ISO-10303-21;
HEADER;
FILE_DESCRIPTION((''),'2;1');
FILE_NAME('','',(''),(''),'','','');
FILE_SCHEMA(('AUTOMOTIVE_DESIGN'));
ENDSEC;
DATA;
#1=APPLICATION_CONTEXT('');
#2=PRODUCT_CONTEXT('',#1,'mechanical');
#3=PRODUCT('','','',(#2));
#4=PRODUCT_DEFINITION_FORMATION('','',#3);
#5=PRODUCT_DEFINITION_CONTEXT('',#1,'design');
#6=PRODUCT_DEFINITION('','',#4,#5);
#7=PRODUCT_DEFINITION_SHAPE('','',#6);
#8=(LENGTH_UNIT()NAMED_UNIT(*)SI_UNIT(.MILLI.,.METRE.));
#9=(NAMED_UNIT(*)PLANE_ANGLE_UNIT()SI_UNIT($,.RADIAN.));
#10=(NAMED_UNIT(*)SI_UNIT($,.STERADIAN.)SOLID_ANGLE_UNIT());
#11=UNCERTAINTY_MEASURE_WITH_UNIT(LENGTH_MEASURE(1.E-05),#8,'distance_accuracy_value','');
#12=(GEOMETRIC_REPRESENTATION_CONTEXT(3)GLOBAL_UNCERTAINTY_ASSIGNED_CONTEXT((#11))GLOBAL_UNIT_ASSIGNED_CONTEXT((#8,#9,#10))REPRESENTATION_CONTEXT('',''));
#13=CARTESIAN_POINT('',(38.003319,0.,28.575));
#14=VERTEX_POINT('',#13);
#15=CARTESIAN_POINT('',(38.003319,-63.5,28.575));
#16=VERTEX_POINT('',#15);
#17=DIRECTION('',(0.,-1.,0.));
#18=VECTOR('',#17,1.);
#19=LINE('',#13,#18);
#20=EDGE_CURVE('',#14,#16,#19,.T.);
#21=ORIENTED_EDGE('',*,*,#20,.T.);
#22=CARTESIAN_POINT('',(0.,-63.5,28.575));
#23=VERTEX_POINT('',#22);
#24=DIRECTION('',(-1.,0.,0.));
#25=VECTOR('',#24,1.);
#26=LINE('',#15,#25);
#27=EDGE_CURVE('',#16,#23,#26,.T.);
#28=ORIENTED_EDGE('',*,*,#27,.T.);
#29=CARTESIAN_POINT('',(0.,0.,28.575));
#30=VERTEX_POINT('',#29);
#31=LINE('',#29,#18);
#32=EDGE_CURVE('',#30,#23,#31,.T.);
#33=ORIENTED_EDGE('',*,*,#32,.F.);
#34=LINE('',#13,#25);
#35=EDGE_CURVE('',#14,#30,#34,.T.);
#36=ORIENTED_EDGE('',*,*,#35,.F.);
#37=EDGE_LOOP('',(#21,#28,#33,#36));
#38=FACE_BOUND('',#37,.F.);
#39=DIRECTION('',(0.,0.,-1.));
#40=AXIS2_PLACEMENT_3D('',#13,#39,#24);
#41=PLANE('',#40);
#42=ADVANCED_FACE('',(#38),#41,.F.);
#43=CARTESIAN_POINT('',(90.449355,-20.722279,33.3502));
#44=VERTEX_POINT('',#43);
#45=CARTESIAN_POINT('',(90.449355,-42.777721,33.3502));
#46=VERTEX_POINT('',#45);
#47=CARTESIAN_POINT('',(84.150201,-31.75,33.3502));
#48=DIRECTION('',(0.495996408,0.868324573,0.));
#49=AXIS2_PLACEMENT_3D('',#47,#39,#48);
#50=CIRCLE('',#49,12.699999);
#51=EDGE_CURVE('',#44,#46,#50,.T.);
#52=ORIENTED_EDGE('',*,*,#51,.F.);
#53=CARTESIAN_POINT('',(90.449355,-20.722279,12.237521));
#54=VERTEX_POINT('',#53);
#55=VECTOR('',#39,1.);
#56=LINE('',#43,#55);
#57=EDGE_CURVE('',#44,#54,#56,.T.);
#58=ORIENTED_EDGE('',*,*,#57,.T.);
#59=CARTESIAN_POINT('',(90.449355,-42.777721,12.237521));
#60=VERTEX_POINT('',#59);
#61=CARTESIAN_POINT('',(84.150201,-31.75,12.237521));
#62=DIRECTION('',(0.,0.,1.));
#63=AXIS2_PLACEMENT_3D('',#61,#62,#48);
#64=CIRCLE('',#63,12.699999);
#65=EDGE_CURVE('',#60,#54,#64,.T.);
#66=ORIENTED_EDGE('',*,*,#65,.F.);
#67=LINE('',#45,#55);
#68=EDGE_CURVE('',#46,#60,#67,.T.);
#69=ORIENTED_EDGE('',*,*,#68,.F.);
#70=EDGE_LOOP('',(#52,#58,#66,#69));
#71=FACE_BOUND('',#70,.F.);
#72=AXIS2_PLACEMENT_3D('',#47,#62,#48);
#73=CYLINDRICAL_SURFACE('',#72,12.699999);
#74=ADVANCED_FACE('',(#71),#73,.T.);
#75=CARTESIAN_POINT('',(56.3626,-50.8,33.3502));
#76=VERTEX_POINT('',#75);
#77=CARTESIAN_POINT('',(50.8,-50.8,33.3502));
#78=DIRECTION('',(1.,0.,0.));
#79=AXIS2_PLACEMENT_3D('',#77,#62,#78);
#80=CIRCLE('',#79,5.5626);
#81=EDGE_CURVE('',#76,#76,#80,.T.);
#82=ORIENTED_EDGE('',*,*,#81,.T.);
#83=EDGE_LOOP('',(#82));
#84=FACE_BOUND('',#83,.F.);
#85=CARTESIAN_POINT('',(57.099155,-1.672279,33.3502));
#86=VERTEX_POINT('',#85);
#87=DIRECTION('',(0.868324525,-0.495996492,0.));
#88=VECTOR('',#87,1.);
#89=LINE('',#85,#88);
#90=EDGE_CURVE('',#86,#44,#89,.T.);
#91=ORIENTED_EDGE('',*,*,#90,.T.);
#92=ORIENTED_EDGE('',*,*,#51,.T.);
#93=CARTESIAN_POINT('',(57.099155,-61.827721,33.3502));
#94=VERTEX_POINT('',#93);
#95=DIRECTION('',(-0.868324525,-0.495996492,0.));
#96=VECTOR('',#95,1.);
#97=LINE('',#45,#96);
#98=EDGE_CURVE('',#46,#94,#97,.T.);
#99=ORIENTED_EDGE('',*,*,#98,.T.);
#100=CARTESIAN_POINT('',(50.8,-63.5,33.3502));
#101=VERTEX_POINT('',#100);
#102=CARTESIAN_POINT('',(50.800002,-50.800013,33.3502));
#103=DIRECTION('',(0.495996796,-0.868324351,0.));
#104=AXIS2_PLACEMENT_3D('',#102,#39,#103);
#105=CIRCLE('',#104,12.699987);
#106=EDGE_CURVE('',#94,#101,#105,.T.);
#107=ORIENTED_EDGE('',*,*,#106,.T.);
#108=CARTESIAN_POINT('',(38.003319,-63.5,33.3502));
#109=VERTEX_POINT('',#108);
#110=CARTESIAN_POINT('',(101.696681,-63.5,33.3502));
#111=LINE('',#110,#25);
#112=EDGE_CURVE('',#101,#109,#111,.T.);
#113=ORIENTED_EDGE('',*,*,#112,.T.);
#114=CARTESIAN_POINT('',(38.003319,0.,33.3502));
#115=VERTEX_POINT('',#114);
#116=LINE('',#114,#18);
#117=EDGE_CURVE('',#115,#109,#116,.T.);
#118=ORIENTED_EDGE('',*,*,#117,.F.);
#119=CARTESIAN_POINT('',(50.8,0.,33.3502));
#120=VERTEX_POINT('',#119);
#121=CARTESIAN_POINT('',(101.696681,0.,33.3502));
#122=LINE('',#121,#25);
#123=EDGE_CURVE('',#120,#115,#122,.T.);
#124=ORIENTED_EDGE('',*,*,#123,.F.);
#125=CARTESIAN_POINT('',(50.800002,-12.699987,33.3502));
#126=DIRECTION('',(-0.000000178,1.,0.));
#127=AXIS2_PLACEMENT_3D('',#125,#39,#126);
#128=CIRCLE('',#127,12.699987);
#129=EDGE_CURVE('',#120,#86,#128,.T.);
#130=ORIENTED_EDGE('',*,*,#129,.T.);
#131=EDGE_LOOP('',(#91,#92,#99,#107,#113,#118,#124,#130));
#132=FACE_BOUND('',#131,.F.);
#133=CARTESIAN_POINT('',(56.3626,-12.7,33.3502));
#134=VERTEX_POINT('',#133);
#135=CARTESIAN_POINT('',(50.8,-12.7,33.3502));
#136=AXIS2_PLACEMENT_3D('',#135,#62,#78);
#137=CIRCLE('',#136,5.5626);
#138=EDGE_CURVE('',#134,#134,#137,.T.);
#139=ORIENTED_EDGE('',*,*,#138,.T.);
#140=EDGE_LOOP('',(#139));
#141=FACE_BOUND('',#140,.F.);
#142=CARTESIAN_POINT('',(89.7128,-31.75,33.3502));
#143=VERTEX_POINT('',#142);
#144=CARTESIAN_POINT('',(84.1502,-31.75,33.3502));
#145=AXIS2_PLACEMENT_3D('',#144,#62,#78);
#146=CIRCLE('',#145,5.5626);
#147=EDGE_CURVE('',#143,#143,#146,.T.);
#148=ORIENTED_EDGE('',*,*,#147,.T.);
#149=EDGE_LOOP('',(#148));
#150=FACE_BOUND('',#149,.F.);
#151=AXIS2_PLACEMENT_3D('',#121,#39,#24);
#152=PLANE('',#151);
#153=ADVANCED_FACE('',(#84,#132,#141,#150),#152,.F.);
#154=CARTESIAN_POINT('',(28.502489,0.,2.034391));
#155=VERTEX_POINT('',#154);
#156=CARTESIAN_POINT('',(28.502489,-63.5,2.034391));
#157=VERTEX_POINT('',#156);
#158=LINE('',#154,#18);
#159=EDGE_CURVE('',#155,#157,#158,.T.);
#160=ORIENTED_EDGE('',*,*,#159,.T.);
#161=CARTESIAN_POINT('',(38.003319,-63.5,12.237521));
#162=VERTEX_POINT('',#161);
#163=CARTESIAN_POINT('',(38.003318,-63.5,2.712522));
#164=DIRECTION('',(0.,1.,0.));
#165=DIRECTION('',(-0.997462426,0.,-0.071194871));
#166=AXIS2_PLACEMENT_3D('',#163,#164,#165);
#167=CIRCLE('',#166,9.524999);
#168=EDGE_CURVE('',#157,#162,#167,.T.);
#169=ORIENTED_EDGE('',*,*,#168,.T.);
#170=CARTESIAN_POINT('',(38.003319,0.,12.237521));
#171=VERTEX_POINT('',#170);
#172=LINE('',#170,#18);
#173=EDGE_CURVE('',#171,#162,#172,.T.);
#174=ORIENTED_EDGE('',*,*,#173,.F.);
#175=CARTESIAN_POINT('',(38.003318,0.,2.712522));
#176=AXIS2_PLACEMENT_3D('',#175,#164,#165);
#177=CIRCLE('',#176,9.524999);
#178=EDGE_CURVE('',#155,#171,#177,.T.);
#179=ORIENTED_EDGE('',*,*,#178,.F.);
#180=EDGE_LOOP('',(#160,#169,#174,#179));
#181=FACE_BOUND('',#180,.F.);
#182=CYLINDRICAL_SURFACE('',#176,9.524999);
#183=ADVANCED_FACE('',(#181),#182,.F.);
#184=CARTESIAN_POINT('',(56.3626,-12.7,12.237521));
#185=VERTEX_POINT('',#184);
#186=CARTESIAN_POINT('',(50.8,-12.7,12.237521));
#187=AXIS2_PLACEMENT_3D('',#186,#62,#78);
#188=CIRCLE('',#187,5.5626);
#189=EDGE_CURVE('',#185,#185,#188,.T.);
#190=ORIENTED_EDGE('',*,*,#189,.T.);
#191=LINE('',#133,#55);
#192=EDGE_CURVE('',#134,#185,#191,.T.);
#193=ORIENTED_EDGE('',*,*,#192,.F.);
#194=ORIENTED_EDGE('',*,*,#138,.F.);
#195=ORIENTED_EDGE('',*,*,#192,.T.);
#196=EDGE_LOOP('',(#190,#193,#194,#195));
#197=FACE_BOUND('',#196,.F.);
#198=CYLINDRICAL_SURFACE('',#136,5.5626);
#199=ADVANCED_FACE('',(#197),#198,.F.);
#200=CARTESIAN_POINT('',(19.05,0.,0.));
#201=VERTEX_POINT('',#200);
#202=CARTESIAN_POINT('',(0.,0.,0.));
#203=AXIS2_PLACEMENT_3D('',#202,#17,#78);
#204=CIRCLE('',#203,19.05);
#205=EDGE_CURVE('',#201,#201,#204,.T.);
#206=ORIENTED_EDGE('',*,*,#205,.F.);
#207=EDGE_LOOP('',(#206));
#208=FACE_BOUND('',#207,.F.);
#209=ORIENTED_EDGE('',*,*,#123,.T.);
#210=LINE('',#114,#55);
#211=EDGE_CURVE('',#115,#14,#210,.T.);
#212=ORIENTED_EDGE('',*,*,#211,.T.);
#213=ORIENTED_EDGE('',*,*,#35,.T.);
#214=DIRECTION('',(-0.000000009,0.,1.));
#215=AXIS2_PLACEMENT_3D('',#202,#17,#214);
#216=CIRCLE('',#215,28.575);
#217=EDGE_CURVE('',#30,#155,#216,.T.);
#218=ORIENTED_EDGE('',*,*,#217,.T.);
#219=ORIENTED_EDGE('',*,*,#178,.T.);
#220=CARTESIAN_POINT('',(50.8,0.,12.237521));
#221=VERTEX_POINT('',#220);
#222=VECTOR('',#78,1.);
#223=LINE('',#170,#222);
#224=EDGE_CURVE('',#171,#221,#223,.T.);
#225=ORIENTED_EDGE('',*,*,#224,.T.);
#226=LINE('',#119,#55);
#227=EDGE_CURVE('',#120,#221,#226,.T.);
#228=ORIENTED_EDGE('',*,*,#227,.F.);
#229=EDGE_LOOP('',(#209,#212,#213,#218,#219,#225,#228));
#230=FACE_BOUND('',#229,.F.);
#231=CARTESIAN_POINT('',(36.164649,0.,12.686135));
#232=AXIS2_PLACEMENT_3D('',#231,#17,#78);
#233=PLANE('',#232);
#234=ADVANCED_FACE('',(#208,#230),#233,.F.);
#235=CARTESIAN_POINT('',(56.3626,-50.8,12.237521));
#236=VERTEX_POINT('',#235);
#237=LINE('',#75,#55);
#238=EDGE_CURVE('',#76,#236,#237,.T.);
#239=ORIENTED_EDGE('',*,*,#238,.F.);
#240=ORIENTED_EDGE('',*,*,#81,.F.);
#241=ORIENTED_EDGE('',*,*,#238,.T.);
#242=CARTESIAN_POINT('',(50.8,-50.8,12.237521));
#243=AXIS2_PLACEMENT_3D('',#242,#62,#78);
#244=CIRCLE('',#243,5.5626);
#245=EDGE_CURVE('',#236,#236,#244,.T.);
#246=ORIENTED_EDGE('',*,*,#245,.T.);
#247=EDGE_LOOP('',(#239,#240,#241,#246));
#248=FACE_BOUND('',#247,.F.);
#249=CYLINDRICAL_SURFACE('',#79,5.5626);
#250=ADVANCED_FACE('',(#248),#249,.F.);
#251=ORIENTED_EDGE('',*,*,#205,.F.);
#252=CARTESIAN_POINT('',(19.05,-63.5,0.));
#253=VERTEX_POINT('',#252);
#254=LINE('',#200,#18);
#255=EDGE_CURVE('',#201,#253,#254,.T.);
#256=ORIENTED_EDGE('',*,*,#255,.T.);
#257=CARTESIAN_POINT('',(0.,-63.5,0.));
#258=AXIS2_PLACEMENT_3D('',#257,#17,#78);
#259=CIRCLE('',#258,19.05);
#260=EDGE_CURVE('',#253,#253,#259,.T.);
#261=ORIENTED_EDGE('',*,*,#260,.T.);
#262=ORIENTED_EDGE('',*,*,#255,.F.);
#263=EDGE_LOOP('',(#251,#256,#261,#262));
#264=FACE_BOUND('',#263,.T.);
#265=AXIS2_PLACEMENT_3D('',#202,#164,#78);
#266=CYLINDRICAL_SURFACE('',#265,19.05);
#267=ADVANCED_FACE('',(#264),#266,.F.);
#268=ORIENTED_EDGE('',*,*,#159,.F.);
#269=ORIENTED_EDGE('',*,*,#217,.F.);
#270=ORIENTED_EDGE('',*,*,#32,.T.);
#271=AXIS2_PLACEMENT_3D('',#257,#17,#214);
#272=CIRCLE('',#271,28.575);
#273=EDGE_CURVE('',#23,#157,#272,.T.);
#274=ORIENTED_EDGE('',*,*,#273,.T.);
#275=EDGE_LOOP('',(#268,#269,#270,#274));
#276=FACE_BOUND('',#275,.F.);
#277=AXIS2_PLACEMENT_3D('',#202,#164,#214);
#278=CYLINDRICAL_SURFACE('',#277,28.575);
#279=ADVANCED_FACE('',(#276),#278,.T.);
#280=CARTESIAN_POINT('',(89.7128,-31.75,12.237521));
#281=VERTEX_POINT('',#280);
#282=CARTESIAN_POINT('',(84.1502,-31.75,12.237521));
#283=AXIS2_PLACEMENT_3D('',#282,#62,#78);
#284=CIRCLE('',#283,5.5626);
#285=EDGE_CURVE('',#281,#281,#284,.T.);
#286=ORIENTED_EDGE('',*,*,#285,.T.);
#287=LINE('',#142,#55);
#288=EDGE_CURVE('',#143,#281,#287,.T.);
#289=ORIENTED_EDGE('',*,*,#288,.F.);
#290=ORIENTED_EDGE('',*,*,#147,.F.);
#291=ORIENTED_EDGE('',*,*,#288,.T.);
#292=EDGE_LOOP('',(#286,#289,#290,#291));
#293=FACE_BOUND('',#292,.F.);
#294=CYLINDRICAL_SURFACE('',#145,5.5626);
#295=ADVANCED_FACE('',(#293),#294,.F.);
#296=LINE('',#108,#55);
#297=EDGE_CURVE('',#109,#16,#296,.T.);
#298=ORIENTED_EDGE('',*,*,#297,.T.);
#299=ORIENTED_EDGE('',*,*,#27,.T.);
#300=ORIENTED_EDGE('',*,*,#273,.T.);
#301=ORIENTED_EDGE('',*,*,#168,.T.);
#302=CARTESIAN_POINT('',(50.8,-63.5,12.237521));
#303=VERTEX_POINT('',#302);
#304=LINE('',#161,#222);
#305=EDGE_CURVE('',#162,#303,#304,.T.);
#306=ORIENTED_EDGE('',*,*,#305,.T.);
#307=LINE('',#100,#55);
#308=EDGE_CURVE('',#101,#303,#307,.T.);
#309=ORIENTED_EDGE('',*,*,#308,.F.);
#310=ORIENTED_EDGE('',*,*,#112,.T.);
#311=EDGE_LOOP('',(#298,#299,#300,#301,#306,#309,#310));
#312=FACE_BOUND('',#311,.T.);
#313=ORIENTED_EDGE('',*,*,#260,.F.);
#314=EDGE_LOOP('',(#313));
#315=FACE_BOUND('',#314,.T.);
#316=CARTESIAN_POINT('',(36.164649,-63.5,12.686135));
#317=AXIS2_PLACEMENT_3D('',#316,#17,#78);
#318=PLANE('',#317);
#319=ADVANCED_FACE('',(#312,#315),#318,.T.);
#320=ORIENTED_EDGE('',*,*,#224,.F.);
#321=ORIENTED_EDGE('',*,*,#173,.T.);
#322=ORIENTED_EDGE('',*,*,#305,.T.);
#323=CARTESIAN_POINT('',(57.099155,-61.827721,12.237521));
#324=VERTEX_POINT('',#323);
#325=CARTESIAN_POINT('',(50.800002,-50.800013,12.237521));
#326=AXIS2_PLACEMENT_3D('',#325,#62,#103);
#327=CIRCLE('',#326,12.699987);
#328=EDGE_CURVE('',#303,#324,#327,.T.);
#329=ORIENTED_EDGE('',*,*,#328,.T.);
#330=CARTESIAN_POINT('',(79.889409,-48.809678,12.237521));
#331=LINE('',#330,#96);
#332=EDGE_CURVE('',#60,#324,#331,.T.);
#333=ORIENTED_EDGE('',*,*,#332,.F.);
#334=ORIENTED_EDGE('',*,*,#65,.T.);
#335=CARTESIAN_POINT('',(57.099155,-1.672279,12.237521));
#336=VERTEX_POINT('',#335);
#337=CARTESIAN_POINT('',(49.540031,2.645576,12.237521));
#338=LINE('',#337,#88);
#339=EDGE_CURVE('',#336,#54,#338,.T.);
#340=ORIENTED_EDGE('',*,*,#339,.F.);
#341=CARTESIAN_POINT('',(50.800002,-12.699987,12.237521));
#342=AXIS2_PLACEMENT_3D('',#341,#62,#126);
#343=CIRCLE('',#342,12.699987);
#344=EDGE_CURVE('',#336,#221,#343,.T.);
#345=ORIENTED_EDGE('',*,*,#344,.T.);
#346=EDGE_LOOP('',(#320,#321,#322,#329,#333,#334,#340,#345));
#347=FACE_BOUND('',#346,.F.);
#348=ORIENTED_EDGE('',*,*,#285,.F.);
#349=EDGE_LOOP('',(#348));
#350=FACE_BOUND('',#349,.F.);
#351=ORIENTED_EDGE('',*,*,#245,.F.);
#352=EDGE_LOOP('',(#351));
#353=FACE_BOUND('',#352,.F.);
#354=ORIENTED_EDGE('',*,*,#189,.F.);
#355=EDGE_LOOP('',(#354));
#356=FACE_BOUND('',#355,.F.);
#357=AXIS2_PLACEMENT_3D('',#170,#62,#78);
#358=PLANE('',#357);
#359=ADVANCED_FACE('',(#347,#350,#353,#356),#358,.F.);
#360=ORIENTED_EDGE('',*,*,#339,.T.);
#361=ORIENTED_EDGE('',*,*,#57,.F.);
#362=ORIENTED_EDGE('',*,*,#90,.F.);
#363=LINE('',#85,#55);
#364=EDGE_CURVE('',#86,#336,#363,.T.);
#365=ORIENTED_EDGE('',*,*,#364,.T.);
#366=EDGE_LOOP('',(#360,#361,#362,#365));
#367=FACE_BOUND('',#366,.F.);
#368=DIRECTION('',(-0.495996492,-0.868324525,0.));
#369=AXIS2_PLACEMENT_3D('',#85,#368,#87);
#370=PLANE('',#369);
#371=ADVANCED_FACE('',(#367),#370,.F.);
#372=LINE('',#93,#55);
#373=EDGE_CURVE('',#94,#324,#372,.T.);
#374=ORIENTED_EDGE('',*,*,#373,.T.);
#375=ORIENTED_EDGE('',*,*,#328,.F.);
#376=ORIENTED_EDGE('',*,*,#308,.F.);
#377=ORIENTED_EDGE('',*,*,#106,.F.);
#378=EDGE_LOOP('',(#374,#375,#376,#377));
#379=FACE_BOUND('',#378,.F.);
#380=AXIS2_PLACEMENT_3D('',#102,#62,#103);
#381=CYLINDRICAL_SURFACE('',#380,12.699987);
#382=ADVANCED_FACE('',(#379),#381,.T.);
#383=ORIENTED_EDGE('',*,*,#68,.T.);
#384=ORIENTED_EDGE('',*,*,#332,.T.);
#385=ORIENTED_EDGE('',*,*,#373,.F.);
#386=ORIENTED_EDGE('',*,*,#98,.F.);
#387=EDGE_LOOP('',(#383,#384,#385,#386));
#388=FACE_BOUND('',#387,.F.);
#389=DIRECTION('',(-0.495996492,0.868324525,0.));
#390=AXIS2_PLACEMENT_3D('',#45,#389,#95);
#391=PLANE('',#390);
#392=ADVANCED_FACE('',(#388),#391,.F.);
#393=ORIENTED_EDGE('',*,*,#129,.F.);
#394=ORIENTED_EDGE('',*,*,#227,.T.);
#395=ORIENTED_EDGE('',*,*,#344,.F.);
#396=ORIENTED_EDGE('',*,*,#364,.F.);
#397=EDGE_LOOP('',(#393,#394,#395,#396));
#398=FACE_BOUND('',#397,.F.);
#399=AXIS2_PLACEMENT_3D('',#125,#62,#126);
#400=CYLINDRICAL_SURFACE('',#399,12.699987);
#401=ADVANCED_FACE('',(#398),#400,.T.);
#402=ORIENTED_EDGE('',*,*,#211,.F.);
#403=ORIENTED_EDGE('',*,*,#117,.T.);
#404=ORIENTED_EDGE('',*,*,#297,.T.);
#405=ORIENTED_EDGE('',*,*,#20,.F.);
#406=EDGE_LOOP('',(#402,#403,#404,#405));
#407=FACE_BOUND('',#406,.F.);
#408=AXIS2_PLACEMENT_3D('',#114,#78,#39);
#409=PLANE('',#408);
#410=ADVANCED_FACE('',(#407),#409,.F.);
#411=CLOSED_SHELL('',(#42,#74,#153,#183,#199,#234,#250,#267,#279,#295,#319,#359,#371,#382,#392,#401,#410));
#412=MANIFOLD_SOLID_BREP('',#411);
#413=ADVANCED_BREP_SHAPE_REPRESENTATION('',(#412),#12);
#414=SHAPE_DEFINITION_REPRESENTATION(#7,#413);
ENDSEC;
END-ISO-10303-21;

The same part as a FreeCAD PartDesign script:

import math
import FreeCAD as App
import Part
import Sketcher
from FreeCAD import Vector
Q = App.Units.Quantity

doc = App.newDocument("Part")
body = doc.addObject("PartDesign::Body", "Body")

# Sketch on XZ plane
sketch1 = body.newObject("Sketcher::SketchObject", "Sketch")
sketch1.AttachmentSupport = (doc.getObject("XZ_Plane"), [""])
sketch1.MapMode = "FlatFace"
sketch1.addGeometry(Part.LineSegment(Vector(38.003319, 28.575, 0), Vector(0, 28.575, 0)), False)
sketch1.addGeometry(Part.ArcOfCircle(Part.Circle(Vector(0, 0, 0), Vector(0, 0, 1), 28.575), math.radians(90.000001), math.radians(364.082614)), False)
sketch1.addGeometry(Part.ArcOfCircle(Part.Circle(Vector(38.003318, 2.712522, 0), Vector(0, 0, 1), 9.524999), math.radians(89.999991), math.radians(184.08262)), False)
sketch1.addGeometry(Part.LineSegment(Vector(38.003319, 12.237521, 0), Vector(101.696681, 12.237521, 0)), False)
sketch1.addGeometry(Part.LineSegment(Vector(101.696681, 12.237521, 0), Vector(101.696681, 33.3502, 0)), False)
sketch1.addGeometry(Part.LineSegment(Vector(101.696681, 33.3502, 0), Vector(38.003319, 33.3502, 0)), False)
sketch1.addGeometry(Part.LineSegment(Vector(38.003319, 33.3502, 0), Vector(38.003319, 28.575, 0)), False)
sketch1.addGeometry(Part.Circle(Vector(0, 0, 0), Vector(0, 0, 1), 19.05), False)
sketch1.addConstraint(Sketcher.Constraint("Tangent", 0, 2, 1, 1))
sketch1.addConstraint(Sketcher.Constraint("Tangent", 1, 2, 2, 2))
sketch1.addConstraint(Sketcher.Constraint("Tangent", 2, 1, 3, 1))
sketch1.addConstraint(Sketcher.Constraint("Coincident", 3, 2, 4, 1))
sketch1.addConstraint(Sketcher.Constraint("Coincident", 4, 2, 5, 1))
sketch1.addConstraint(Sketcher.Constraint("Coincident", 5, 2, 6, 1))
sketch1.addConstraint(Sketcher.Constraint("Coincident", 6, 2, 0, 1))
sketch1.addConstraint(Sketcher.Constraint("Horizontal", 0))
sketch1.addConstraint(Sketcher.Constraint("Horizontal", 3))
sketch1.addConstraint(Sketcher.Constraint("Vertical", 4))
sketch1.addConstraint(Sketcher.Constraint("Horizontal", 5))
sketch1.addConstraint(Sketcher.Constraint("Vertical", 6))
sketch1.addConstraint(Sketcher.Constraint("Coincident", 1, 3, -1, 1))
sketch1.addConstraint(Sketcher.Constraint("Coincident", 7, 3, -1, 1))
sketch1.addConstraint(Sketcher.Constraint("Vertical", 2, 1, 5, 2))
sketch1.addConstraint(Sketcher.Constraint("Diameter", 7, Q("1.5 in")))
sketch1.addConstraint(Sketcher.Constraint("Radius", 1, Q("1.125 in")))
sketch1.addConstraint(Sketcher.Constraint("Radius", 2, Q("0.375 in")))
sketch1.addConstraint(Sketcher.Constraint("DistanceY", 6, 2, 6, 1, Q("0.188 in")))
sketch1.addConstraint(Sketcher.Constraint("DistanceX", 0, 2, 0, 1, 38.003319))
sketch1.addConstraint(Sketcher.Constraint("DistanceX", 3, 1, 3, 2, 63.693362))
pad1 = body.newObject("PartDesign::Pad", "Pad")
pad1.Profile = sketch1
pad1.Length = Q("2.5 in")

# Sketch on XY plane
sketch2 = body.newObject("Sketcher::SketchObject", "Sketch001")
sketch2.AttachmentSupport = (doc.getObject("XY_Plane"), [""])
sketch2.MapMode = "FlatFace"
sketch2.AttachmentOffset = App.Placement(Vector(0, 0, 1.313 * 25.4), App.Rotation())
sketch2.addGeometry(Part.ArcOfCircle(Part.Circle(Vector(84.150201, -31.75, 0), Vector(0, 0, 1), 12.699999), math.radians(-60.264524), math.radians(60.264524)), False)
sketch2.addGeometry(Part.LineSegment(Vector(90.449355, -42.777721, 0), Vector(57.099155, -61.827721, 0)), False)
sketch2.addGeometry(Part.ArcOfCircle(Part.Circle(Vector(50.800002, -50.800013, 0), Vector(0, 0, 1), 12.699987), math.radians(-90.00001), math.radians(-60.264498)), False)
sketch2.addGeometry(Part.LineSegment(Vector(50.8, -63.5, 0), Vector(101.696681, -63.5, 0)), False)
sketch2.addGeometry(Part.LineSegment(Vector(101.696681, -63.5, 0), Vector(101.696681, 0, 0)), False)
sketch2.addGeometry(Part.LineSegment(Vector(101.696681, 0, 0), Vector(50.8, 0, 0)), False)
sketch2.addGeometry(Part.ArcOfCircle(Part.Circle(Vector(50.800002, -12.699987, 0), Vector(0, 0, 1), 12.699987), math.radians(60.264498), math.radians(90.00001)), False)
sketch2.addGeometry(Part.LineSegment(Vector(57.099155, -1.672279, 0), Vector(90.449355, -20.722279, 0)), False)
sketch2.addGeometry(Part.Circle(Vector(50.8, -50.8, 0), Vector(0, 0, 1), 5.5626), False)
sketch2.addGeometry(Part.Circle(Vector(84.1502, -31.75, 0), Vector(0, 0, 1), 5.5626), False)
sketch2.addGeometry(Part.Circle(Vector(50.8, -12.7, 0), Vector(0, 0, 1), 5.5626), False)
sketch2.addConstraint(Sketcher.Constraint("Tangent", 0, 1, 1, 1))
sketch2.addConstraint(Sketcher.Constraint("Tangent", 1, 2, 2, 2))
sketch2.addConstraint(Sketcher.Constraint("Tangent", 2, 1, 3, 1))
sketch2.addConstraint(Sketcher.Constraint("Coincident", 3, 2, 4, 1))
sketch2.addConstraint(Sketcher.Constraint("Coincident", 4, 2, 5, 1))
sketch2.addConstraint(Sketcher.Constraint("Tangent", 5, 2, 6, 2))
sketch2.addConstraint(Sketcher.Constraint("Tangent", 6, 1, 7, 1))
sketch2.addConstraint(Sketcher.Constraint("Tangent", 7, 2, 0, 2))
sketch2.addConstraint(Sketcher.Constraint("Horizontal", 3))
sketch2.addConstraint(Sketcher.Constraint("Vertical", 4))
sketch2.addConstraint(Sketcher.Constraint("Horizontal", 5))
sketch2.addConstraint(Sketcher.Constraint("Coincident", 9, 3, 0, 3))
sketch2.addConstraint(Sketcher.Constraint("Equal", 2, 6))
sketch2.addConstraint(Sketcher.Constraint("Equal", 8, 9))
sketch2.addConstraint(Sketcher.Constraint("Equal", 9, 10))
sketch2.addConstraint(Sketcher.Constraint("PointOnObject", 4, 2, -1))
sketch2.addConstraint(Sketcher.Constraint("Vertical", 2, 3, 6, 3))
sketch2.addConstraint(Sketcher.Constraint("Vertical", 8, 3, 10, 3))
sketch2.addConstraint(Sketcher.Constraint("Vertical", 10, 3, 2, 1))
sketch2.addConstraint(Sketcher.Constraint("Vertical", 1, 2, 6, 1))
sketch2.addConstraint(Sketcher.Constraint("Radius", 0, Q("0.5 in")))
sketch2.addConstraint(Sketcher.Constraint("Diameter", 8, Q("0.438 in")))
sketch2.addConstraint(Sketcher.Constraint("DistanceY", 4, 1, 4, 2, Q("2.5 in")))
sketch2.addConstraint(Sketcher.Constraint("DistanceX", -1, 1, 2, 3, Q("2.0000001 in")))
sketch2.addConstraint(Sketcher.Constraint("DistanceY", 8, 3, -1, 1, Q("2 in")))
sketch2.addConstraint(Sketcher.Constraint("DistanceY", 10, 3, -1, 1, Q("0.5 in")))
sketch2.addConstraint(Sketcher.Constraint("DistanceY", 1, 2, 0, 1, Q("0.75 in")))
sketch2.addConstraint(Sketcher.Constraint("DistanceX", -1, 1, 0, 3, Q("3.313 in")))
sketch2.addConstraint(Sketcher.Constraint("DistanceX", 3, 1, 3, 2, 50.896681))
pocket1 = body.newObject("PartDesign::Pocket", "Pocket")
pocket1.Profile = sketch2
pocket1.Length = Q("1 in")

doc.recompute()
